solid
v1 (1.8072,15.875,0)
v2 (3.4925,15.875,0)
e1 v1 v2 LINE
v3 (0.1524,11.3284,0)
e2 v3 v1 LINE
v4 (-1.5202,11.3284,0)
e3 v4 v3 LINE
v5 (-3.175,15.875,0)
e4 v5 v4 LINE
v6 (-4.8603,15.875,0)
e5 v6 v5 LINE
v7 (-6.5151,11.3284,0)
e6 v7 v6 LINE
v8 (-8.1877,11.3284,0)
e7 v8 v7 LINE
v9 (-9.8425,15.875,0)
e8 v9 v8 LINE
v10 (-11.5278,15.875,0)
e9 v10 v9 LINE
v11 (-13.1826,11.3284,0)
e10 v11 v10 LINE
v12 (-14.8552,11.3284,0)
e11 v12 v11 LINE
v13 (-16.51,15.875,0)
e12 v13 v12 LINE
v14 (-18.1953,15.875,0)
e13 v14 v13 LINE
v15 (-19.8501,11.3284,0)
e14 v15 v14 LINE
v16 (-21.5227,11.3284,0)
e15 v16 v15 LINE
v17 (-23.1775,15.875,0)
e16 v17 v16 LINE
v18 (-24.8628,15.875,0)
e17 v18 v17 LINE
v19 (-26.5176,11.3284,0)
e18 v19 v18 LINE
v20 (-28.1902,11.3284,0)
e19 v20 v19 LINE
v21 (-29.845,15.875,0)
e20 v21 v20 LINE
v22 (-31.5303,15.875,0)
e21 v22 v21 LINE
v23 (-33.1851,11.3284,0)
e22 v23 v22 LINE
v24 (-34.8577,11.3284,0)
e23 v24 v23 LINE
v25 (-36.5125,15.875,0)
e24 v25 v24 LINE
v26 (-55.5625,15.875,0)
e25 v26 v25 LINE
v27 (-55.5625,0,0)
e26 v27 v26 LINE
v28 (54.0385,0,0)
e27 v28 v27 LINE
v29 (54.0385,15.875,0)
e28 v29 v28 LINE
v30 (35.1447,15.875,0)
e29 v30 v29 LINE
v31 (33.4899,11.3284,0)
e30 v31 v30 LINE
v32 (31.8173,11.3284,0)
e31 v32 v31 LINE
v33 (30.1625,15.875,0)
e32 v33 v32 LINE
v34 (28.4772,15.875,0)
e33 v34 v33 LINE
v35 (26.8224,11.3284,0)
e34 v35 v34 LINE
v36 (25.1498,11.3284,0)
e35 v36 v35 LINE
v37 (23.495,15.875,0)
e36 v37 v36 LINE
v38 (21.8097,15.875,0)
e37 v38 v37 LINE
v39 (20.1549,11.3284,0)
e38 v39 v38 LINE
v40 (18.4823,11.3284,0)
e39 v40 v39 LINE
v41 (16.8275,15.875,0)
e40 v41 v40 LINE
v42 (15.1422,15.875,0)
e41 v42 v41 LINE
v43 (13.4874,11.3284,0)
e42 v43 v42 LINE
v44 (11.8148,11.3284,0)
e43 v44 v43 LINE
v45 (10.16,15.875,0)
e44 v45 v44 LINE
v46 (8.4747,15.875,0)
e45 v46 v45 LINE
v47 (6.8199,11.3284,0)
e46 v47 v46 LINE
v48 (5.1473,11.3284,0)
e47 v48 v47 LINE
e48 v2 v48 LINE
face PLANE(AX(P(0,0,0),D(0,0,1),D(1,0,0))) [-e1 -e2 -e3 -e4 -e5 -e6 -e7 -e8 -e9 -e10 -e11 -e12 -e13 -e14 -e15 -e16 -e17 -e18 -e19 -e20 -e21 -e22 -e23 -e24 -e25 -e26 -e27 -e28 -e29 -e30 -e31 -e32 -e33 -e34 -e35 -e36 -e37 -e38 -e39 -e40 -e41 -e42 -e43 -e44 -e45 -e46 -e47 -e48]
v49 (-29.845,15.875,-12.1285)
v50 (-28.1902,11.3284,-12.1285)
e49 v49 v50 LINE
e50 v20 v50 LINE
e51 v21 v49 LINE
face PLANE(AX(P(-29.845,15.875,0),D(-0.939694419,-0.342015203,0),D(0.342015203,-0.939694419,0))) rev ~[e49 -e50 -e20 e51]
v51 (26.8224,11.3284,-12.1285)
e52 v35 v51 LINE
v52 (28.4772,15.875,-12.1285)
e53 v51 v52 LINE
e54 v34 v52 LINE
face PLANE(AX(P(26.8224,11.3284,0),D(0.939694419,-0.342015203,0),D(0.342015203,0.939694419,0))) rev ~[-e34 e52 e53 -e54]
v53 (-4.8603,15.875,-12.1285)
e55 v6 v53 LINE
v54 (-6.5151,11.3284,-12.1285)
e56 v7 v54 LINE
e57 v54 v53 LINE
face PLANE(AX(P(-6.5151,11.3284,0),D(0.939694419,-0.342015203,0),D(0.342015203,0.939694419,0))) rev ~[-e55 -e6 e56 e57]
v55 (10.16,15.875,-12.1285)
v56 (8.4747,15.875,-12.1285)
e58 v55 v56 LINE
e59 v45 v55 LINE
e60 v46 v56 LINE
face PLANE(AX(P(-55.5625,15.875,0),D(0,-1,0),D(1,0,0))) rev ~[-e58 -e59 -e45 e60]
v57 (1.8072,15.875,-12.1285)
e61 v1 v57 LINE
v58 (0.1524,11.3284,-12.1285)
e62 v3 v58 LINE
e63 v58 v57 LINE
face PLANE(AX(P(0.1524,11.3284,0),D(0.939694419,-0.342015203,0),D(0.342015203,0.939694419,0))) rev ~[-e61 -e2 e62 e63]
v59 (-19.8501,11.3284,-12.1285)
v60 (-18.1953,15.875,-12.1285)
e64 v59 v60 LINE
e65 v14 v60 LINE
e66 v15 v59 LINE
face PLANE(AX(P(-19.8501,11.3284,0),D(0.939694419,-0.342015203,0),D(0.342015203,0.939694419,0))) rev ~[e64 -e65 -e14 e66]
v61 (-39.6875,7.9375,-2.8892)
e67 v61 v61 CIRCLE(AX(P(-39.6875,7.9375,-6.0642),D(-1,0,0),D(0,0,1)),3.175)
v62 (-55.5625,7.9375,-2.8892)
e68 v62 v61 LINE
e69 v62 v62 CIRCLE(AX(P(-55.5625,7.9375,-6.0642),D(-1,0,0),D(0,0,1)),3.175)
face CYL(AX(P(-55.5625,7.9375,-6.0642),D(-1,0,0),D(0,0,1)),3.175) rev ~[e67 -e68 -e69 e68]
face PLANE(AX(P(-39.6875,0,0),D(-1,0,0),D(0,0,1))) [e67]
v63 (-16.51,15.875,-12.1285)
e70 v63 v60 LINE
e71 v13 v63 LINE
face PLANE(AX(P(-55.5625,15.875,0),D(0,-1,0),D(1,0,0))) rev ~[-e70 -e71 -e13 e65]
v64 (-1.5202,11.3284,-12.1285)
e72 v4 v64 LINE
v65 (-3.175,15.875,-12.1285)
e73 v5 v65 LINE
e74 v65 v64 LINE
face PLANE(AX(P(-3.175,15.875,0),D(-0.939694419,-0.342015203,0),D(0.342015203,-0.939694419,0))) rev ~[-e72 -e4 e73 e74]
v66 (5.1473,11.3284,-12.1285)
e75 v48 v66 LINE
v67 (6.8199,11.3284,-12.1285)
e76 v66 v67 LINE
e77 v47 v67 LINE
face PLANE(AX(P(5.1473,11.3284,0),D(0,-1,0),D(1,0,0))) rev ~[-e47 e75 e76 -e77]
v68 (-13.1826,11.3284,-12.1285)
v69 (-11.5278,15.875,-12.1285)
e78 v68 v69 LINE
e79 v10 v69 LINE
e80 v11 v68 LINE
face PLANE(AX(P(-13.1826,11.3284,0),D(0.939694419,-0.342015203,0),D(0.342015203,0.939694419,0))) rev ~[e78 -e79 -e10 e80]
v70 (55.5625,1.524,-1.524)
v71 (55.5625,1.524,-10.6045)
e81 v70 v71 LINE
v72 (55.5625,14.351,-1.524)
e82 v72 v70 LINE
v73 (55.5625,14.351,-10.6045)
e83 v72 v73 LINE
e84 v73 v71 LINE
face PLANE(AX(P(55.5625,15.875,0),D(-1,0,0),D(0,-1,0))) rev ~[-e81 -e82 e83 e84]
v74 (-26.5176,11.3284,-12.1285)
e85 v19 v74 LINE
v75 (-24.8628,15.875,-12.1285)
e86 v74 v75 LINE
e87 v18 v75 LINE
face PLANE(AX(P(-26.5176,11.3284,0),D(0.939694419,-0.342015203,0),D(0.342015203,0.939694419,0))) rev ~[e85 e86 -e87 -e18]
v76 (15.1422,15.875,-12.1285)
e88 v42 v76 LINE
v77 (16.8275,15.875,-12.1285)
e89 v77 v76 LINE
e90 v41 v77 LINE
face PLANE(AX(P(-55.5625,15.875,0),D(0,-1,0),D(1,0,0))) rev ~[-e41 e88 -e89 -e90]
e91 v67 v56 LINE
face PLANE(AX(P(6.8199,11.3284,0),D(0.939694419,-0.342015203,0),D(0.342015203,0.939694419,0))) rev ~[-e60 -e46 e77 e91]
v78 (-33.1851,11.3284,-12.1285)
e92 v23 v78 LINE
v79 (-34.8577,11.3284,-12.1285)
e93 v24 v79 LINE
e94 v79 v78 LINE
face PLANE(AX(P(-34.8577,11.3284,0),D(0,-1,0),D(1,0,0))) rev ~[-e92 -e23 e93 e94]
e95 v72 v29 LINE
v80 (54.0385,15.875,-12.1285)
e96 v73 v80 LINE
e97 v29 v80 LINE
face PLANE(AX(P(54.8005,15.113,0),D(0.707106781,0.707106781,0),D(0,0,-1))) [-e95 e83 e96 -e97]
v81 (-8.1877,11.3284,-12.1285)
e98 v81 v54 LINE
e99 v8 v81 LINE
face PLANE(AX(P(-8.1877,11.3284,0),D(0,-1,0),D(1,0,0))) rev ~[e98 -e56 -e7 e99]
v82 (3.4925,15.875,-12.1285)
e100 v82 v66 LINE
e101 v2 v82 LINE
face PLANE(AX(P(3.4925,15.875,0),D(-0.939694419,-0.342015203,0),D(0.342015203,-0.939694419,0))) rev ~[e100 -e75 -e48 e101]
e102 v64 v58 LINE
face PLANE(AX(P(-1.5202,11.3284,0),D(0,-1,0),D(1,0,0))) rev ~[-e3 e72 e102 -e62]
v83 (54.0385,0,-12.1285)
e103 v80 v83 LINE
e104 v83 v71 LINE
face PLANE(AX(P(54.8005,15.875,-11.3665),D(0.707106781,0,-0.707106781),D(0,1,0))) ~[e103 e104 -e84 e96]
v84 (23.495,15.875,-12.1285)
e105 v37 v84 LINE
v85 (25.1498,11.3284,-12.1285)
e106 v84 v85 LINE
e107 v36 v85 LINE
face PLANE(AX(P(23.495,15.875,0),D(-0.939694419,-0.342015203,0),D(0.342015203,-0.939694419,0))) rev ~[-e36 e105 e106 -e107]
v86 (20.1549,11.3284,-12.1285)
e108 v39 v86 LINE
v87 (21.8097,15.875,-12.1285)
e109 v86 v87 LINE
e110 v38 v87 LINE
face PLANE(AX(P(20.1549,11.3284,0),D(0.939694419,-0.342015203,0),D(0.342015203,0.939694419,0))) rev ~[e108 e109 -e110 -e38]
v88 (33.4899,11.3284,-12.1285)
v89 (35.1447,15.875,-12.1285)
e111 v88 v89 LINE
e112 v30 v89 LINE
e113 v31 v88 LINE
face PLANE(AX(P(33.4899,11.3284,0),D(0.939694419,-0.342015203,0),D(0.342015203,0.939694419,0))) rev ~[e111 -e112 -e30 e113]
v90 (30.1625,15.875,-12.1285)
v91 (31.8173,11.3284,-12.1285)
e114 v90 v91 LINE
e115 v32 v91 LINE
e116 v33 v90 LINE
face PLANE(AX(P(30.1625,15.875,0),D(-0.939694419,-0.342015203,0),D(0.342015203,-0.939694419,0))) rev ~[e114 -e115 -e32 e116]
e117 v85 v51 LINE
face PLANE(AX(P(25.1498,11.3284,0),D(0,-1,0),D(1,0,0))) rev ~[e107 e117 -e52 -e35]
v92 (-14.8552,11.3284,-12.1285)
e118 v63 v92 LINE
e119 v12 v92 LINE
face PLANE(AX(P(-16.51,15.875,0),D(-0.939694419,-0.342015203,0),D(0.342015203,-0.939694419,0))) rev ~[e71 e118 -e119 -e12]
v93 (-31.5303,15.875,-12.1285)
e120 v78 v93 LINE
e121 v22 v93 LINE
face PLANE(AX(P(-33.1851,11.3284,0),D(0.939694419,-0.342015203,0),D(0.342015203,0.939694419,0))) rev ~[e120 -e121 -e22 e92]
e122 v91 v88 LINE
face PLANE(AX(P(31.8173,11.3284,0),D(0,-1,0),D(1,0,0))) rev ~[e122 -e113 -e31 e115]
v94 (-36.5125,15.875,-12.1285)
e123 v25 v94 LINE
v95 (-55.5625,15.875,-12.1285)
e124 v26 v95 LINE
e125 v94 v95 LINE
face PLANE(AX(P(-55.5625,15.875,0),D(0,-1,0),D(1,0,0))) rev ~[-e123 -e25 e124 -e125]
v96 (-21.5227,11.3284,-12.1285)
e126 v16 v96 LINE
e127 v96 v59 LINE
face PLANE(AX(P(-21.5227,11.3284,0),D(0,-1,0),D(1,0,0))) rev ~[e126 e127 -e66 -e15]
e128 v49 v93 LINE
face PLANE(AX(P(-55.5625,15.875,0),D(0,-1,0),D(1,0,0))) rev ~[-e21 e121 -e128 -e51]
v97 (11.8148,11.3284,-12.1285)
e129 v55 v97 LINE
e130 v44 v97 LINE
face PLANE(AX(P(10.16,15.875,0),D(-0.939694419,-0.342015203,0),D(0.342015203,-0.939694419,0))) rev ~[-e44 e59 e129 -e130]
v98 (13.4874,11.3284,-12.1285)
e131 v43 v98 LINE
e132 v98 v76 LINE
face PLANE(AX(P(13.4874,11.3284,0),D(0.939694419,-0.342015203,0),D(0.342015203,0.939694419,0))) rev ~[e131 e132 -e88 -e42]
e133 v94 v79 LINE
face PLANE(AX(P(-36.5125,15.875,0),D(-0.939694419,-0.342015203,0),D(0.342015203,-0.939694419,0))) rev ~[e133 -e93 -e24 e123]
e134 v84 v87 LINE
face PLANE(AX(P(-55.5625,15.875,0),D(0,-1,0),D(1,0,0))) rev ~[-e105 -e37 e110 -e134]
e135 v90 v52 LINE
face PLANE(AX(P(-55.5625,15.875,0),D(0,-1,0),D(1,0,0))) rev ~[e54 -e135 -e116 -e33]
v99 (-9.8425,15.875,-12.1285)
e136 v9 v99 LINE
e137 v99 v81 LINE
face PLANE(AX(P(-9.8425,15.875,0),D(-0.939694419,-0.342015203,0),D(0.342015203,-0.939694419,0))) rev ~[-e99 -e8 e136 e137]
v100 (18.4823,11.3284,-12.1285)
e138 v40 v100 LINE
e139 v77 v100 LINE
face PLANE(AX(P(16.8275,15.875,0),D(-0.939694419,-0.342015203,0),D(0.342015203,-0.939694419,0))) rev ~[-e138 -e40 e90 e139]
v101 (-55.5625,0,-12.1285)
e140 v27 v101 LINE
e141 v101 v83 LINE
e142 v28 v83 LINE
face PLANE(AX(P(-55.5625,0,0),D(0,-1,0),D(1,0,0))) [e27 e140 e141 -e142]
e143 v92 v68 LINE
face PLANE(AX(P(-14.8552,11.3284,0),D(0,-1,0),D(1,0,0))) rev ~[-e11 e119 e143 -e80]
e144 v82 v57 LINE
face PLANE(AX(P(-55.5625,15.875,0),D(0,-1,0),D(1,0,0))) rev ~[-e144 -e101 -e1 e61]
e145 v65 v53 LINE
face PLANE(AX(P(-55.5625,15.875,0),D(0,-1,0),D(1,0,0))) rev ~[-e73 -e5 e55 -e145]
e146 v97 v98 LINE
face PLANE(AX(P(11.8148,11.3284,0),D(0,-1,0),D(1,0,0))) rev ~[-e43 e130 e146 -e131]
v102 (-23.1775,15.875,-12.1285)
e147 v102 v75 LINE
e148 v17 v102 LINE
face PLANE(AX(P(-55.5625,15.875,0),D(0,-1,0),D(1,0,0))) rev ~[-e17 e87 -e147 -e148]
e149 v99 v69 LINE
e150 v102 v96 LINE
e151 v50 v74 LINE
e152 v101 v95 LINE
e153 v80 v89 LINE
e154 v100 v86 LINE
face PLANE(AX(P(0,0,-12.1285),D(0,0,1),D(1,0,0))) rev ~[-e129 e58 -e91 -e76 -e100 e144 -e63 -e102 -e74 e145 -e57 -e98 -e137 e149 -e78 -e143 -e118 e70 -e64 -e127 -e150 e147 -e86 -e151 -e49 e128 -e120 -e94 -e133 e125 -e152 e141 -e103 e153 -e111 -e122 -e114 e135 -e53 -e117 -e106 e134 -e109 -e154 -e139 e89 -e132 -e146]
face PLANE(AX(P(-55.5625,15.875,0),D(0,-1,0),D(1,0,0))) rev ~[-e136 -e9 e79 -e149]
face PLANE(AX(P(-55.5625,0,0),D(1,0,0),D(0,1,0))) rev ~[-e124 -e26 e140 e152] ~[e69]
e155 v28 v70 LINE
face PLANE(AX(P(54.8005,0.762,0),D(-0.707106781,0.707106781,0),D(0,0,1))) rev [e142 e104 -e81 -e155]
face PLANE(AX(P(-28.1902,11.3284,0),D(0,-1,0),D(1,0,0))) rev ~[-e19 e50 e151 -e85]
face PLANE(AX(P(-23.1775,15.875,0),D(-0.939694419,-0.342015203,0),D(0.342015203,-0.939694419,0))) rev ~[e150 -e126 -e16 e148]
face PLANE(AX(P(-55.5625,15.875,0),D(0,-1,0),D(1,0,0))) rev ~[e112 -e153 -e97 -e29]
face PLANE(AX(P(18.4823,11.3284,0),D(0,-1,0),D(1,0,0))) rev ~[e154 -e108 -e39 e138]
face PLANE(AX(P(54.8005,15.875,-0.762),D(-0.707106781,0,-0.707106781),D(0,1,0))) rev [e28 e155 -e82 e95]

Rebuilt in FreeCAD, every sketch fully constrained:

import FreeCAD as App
import Part
import Sketcher
Q = App.Units.Quantity


def edges_at(feature, points):
    """Names of the edges that pass closest to the given points."""
    edges = feature.Shape.Edges
    near = lambda p: min(range(len(edges)), key=lambda i: edges[i].distToShape(Part.Vertex(*p))[0])
    return sorted({f"Edge{near(p) + 1}" for p in points})


def add_polygon(sketch, points):
    """Adds a closed chain of lines whose ends are joined by coincident constraints."""
    first, n = sketch.GeometryCount, len(points)
    for a, b in zip(points, points[1:] + points[:1]):
        sketch.addGeometry(Part.LineSegment(App.Vector(*a, 0), App.Vector(*b, 0)), False)
    for i in range(n):
        sketch.addConstraint(Sketcher.Constraint("Coincident", first + i, 2, first + (i + 1) % n, 1))

doc = App.newDocument("Part")
params = doc.addObject("Spreadsheet::Sheet", "Params")
for row, (alias, value) in enumerate([
    ("sketch1_width", "4.375 in"),
    ("sketch1_height", "0.625 in"),
    ("pad1_length", "0.4775 in"),
    ("sketch3_diameter", "0.25 in"),
    ("pocket2_length", "0.625 in"),
    ("chamfer_size", "0.06 in"),
], start=1):
    params.set(f"A{row}", alias)
    params.set(f"B{row}", "=" + value)
    params.setAlias(f"B{row}", alias)

body = doc.addObject("PartDesign::Body", "Body")

sketch1 = body.newObject("Sketcher::SketchObject", "Sketch")
sketch1.AttachmentSupport = (doc.getObject("XY_Plane"), [""])
sketch1.MapMode = "FlatFace"
add_polygon(sketch1, [(-55.5625, 15.875), (-55.5625, 0), (55.5625, 0), (55.5625, 15.875)])
sketch1.addConstraint(Sketcher.Constraint("Vertical", 0))
sketch1.addConstraint(Sketcher.Constraint("Horizontal", 1))
sketch1.addConstraint(Sketcher.Constraint("Vertical", 2))
sketch1.addConstraint(Sketcher.Constraint("Horizontal", 3))
sketch1.addConstraint(Sketcher.Constraint("Symmetric", 0, 2, 1, 2, -1, 1))
sketch1.addConstraint(Sketcher.Constraint("DistanceX", 1, 1, 1, 2, Q("4.375 in")))
sketch1.addConstraint(Sketcher.Constraint("DistanceY", 0, 2, 0, 1, Q("0.625 in")))
sketch1.setExpression("Constraints[9]", "Params.sketch1_width")
sketch1.setExpression("Constraints[10]", "Params.sketch1_height")
pad1 = body.newObject("PartDesign::Pad", "Pad")
pad1.Profile = sketch1
pad1.setExpression("Length", "Params.pad1_length")
pad1.Reversed = True

sketch2 = body.newObject("Sketcher::SketchObject", "Sketch001")
sketch2.AttachmentSupport = (doc.getObject("XY_Plane"), [""])
sketch2.MapMode = "FlatFace"
add_polygon(sketch2, [(35.1447, 15.875), (30.1625, 15.875), (31.8173, 11.3284), (33.4899, 11.3284)])
add_polygon(sketch2, [(28.4772, 15.875), (23.495, 15.875), (25.1498, 11.3284), (26.8224, 11.3284)])
add_polygon(sketch2, [(21.8097, 15.875), (16.8275, 15.875), (18.4823, 11.3284), (20.1549, 11.3284)])
add_polygon(sketch2, [(15.1422, 15.875), (10.16, 15.875), (11.8148, 11.3284), (13.4874, 11.3284)])
add_polygon(sketch2, [(8.4747, 15.875), (3.4925, 15.875), (5.1473, 11.3284), (6.8199, 11.3284)])
add_polygon(sketch2, [(1.8072, 15.875), (-3.175, 15.875), (-1.5202, 11.3284), (0.1524, 11.3284)])
add_polygon(sketch2, [(-4.8603, 15.875), (-9.8425, 15.875), (-8.1877, 11.3284), (-6.5151, 11.3284)])
add_polygon(sketch2, [(-11.5278, 15.875), (-16.51, 15.875), (-14.8552, 11.3284), (-13.1826, 11.3284)])
add_polygon(sketch2, [(-18.1953, 15.875), (-23.1775, 15.875), (-21.5227, 11.3284), (-19.8501, 11.3284)])
add_polygon(sketch2, [(-24.8628, 15.875), (-29.845, 15.875), (-28.1902, 11.3284), (-26.5176, 11.3284)])
add_polygon(sketch2, [(-31.5303, 15.875), (-36.5125, 15.875), (-34.8577, 11.3284), (-33.1851, 11.3284)])
sketch2.addConstraint(Sketcher.Constraint("Horizontal", 0))
sketch2.addConstraint(Sketcher.Constraint("Horizontal", 2))
sketch2.addConstraint(Sketcher.Constraint("Horizontal", 4))
sketch2.addConstraint(Sketcher.Constraint("Horizontal", 6))
sketch2.addConstraint(Sketcher.Constraint("Horizontal", 8))
sketch2.addConstraint(Sketcher.Constraint("Horizontal", 10))
sketch2.addConstraint(Sketcher.Constraint("Horizontal", 12))
sketch2.addConstraint(Sketcher.Constraint("Horizontal", 14))
sketch2.addConstraint(Sketcher.Constraint("Horizontal", 16))
sketch2.addConstraint(Sketcher.Constraint("Horizontal", 18))
sketch2.addConstraint(Sketcher.Constraint("Horizontal", 20))
sketch2.addConstraint(Sketcher.Constraint("Horizontal", 22))
sketch2.addConstraint(Sketcher.Constraint("Horizontal", 24))
sketch2.addConstraint(Sketcher.Constraint("Horizontal", 26))
sketch2.addConstraint(Sketcher.Constraint("Horizontal", 28))
sketch2.addConstraint(Sketcher.Constraint("Horizontal", 30))
sketch2.addConstraint(Sketcher.Constraint("Horizontal", 32))
sketch2.addConstraint(Sketcher.Constraint("Horizontal", 34))
sketch2.addConstraint(Sketcher.Constraint("Horizontal", 36))
sketch2.addConstraint(Sketcher.Constraint("Horizontal", 38))
sketch2.addConstraint(Sketcher.Constraint("Horizontal", 40))
sketch2.addConstraint(Sketcher.Constraint("Horizontal", 42))
sketch2.addConstraint(Sketcher.Constraint("Parallel", 1, 5))
sketch2.addConstraint(Sketcher.Constraint("Parallel", 3, 7))
sketch2.addConstraint(Sketcher.Constraint("Parallel", 5, 9))
sketch2.addConstraint(Sketcher.Constraint("Parallel", 7, 11))
sketch2.addConstraint(Sketcher.Constraint("Parallel", 9, 13))
sketch2.addConstraint(Sketcher.Constraint("Parallel", 11, 15))
sketch2.addConstraint(Sketcher.Constraint("Parallel", 13, 17))
sketch2.addConstraint(Sketcher.Constraint("Parallel", 15, 19))
sketch2.addConstraint(Sketcher.Constraint("Parallel", 17, 21))
sketch2.addConstraint(Sketcher.Constraint("Parallel", 19, 23))
sketch2.addConstraint(Sketcher.Constraint("Parallel", 21, 25))
sketch2.addConstraint(Sketcher.Constraint("Parallel", 23, 27))
sketch2.addConstraint(Sketcher.Constraint("Parallel", 25, 29))
sketch2.addConstraint(Sketcher.Constraint("Parallel", 27, 31))
sketch2.addConstraint(Sketcher.Constraint("Parallel", 29, 33))
sketch2.addConstraint(Sketcher.Constraint("Parallel", 31, 35))
sketch2.addConstraint(Sketcher.Constraint("Parallel", 33, 37))
sketch2.addConstraint(Sketcher.Constraint("Parallel", 35, 39))
sketch2.addConstraint(Sketcher.Constraint("Parallel", 37, 41))
sketch2.addConstraint(Sketcher.Constraint("Parallel", 39, 43))
sketch2.addConstraint(Sketcher.Constraint("Horizontal", 3, 2, 4, 2))
sketch2.addConstraint(Sketcher.Constraint("Horizontal", 2, 2, 5, 2))
sketch2.addConstraint(Sketcher.Constraint("Horizontal", 7, 2, 8, 2))
sketch2.addConstraint(Sketcher.Constraint("Horizontal", 6, 2, 9, 2))
sketch2.addConstraint(Sketcher.Constraint("Horizontal", 11, 2, 12, 2))
sketch2.addConstraint(Sketcher.Constraint("Horizontal", 10, 2, 13, 2))
sketch2.addConstraint(Sketcher.Constraint("Horizontal", 15, 2, 16, 2))
sketch2.addConstraint(Sketcher.Constraint("Horizontal", 14, 2, 17, 2))
sketch2.addConstraint(Sketcher.Constraint("Horizontal", 19, 2, 20, 2))
sketch2.addConstraint(Sketcher.Constraint("Horizontal", 18, 2, 21, 2))
sketch2.addConstraint(Sketcher.Constraint("Horizontal", 23, 2, 24, 2))
sketch2.addConstraint(Sketcher.Constraint("Horizontal", 22, 2, 25, 2))
sketch2.addConstraint(Sketcher.Constraint("Horizontal", 27, 2, 28, 2))
sketch2.addConstraint(Sketcher.Constraint("Horizontal", 26, 2, 29, 2))
sketch2.addConstraint(Sketcher.Constraint("Horizontal", 31, 2, 32, 2))
sketch2.addConstraint(Sketcher.Constraint("Horizontal", 30, 2, 33, 2))
sketch2.addConstraint(Sketcher.Constraint("Horizontal", 35, 2, 36, 2))
sketch2.addConstraint(Sketcher.Constraint("Horizontal", 34, 2, 37, 2))
sketch2.addConstraint(Sketcher.Constraint("Horizontal", 39, 2, 40, 2))
sketch2.addConstraint(Sketcher.Constraint("Horizontal", 38, 2, 41, 2))
sketch2.addConstraint(Sketcher.Constraint("Equal", 0, 4))
sketch2.addConstraint(Sketcher.Constraint("Equal", 4, 8))
sketch2.addConstraint(Sketcher.Constraint("Equal", 8, 12))
sketch2.addConstraint(Sketcher.Constraint("Equal", 12, 16))
sketch2.addConstraint(Sketcher.Constraint("Equal", 16, 20))
sketch2.addConstraint(Sketcher.Constraint("Equal", 20, 24))
sketch2.addConstraint(Sketcher.Constraint("Equal", 24, 28))
sketch2.addConstraint(Sketcher.Constraint("Equal", 28, 32))
sketch2.addConstraint(Sketcher.Constraint("Equal", 32, 36))
sketch2.addConstraint(Sketcher.Constraint("Equal", 36, 40))
sketch2.addConstraint(Sketcher.Constraint("Equal", 1, 3))
sketch2.addConstraint(Sketcher.Constraint("Angle", 1, Q("-70.0003 deg")))
sketch2.addConstraint(Sketcher.Constraint("DistanceY", 1, 2, 0, 2, Q("0.179 in")))
sketch2.addConstraint(Sketcher.Constraint("DistanceX", -1, 1, 12, 2, Q("0.4 in")))
sketch2.addConstraint(Sketcher.Constraint("DistanceX", 4, 2, 0, 2, Q("0.2625 in")))
sketch2.addConstraint(Sketcher.Constraint("DistanceX", 8, 2, 4, 2, Q("0.2625 in")))
sketch2.addConstraint(Sketcher.Constraint("DistanceX", 12, 2, 8, 2, Q("0.2625 in")))
sketch2.addConstraint(Sketcher.Constraint("DistanceX", 16, 2, 12, 2, Q("0.2625 in")))
sketch2.addConstraint(Sketcher.Constraint("DistanceX", 20, 2, 16, 2, Q("0.2625 in")))
sketch2.addConstraint(Sketcher.Constraint("DistanceX", 24, 2, 20, 2, Q("0.2625 in")))
sketch2.addConstraint(Sketcher.Constraint("DistanceX", 28, 2, 24, 2, Q("0.2625 in")))
sketch2.addConstraint(Sketcher.Constraint("DistanceX", 32, 2, 28, 2, Q("0.2625 in")))
sketch2.addConstraint(Sketcher.Constraint("DistanceX", 36, 2, 32, 2, Q("0.2625 in")))
sketch2.addConstraint(Sketcher.Constraint("DistanceX", 40, 2, 36, 2, Q("0.2625 in")))
sketch2.addConstraint(Sketcher.Constraint("DistanceY", -1, 1, 0, 2, Q("0.625 in")))
sketch2.addConstraint(Sketcher.Constraint("DistanceX", -1, 1, 6, 2, Q("1.056 in")))
pocket1 = body.newObject("PartDesign::Pocket", "Pocket")
pocket1.Profile = sketch2
pocket1.Type = "ThroughAll"

sketch3 = body.newObject("Sketcher::SketchObject", "Sketch002")
sketch3.AttachmentSupport = (doc.getObject("YZ_Plane"), [""])
sketch3.MapMode = "FlatFace"
sketch3.AttachmentOffset = App.Placement(App.Vector(0, 0, -2.1875 * 25.4), App.Rotation())
sketch3.addGeometry(Part.Circle(App.Vector(7.9375, -6.0642, 0), App.Vector(0, 0, 1), 3.175), False)
sketch3.addConstraint(Sketcher.Constraint("Diameter", 0, Q("0.25 in")))
sketch3.addConstraint(Sketcher.Constraint("DistanceX", -1, 1, 0, 3, Q("0.3125 in")))
sketch3.addConstraint(Sketcher.Constraint("DistanceY", 0, 3, -1, 1, Q("6.0642 mm")))
sketch3.setExpression("Constraints[0]", "Params.sketch3_diameter")
pocket2 = body.newObject("PartDesign::Pocket", "Pocket001")
pocket2.Profile = sketch3
pocket2.setExpression("Length", "Params.pocket2_length")
pocket2.Reversed = True
doc.recompute()

chamfer = body.newObject("PartDesign::Chamfer", "Chamfer")
chamfer.Base = (pocket2, edges_at(pocket2, [
    (55.562, 15.875, -6.064),
    (55.562, 7.938, 0),
    (55.562, 0, -6.064),
    (55.562, 7.938, -12.129),
]))
chamfer.setExpression("Size", "Params.chamfer_size")

doc.recompute()
